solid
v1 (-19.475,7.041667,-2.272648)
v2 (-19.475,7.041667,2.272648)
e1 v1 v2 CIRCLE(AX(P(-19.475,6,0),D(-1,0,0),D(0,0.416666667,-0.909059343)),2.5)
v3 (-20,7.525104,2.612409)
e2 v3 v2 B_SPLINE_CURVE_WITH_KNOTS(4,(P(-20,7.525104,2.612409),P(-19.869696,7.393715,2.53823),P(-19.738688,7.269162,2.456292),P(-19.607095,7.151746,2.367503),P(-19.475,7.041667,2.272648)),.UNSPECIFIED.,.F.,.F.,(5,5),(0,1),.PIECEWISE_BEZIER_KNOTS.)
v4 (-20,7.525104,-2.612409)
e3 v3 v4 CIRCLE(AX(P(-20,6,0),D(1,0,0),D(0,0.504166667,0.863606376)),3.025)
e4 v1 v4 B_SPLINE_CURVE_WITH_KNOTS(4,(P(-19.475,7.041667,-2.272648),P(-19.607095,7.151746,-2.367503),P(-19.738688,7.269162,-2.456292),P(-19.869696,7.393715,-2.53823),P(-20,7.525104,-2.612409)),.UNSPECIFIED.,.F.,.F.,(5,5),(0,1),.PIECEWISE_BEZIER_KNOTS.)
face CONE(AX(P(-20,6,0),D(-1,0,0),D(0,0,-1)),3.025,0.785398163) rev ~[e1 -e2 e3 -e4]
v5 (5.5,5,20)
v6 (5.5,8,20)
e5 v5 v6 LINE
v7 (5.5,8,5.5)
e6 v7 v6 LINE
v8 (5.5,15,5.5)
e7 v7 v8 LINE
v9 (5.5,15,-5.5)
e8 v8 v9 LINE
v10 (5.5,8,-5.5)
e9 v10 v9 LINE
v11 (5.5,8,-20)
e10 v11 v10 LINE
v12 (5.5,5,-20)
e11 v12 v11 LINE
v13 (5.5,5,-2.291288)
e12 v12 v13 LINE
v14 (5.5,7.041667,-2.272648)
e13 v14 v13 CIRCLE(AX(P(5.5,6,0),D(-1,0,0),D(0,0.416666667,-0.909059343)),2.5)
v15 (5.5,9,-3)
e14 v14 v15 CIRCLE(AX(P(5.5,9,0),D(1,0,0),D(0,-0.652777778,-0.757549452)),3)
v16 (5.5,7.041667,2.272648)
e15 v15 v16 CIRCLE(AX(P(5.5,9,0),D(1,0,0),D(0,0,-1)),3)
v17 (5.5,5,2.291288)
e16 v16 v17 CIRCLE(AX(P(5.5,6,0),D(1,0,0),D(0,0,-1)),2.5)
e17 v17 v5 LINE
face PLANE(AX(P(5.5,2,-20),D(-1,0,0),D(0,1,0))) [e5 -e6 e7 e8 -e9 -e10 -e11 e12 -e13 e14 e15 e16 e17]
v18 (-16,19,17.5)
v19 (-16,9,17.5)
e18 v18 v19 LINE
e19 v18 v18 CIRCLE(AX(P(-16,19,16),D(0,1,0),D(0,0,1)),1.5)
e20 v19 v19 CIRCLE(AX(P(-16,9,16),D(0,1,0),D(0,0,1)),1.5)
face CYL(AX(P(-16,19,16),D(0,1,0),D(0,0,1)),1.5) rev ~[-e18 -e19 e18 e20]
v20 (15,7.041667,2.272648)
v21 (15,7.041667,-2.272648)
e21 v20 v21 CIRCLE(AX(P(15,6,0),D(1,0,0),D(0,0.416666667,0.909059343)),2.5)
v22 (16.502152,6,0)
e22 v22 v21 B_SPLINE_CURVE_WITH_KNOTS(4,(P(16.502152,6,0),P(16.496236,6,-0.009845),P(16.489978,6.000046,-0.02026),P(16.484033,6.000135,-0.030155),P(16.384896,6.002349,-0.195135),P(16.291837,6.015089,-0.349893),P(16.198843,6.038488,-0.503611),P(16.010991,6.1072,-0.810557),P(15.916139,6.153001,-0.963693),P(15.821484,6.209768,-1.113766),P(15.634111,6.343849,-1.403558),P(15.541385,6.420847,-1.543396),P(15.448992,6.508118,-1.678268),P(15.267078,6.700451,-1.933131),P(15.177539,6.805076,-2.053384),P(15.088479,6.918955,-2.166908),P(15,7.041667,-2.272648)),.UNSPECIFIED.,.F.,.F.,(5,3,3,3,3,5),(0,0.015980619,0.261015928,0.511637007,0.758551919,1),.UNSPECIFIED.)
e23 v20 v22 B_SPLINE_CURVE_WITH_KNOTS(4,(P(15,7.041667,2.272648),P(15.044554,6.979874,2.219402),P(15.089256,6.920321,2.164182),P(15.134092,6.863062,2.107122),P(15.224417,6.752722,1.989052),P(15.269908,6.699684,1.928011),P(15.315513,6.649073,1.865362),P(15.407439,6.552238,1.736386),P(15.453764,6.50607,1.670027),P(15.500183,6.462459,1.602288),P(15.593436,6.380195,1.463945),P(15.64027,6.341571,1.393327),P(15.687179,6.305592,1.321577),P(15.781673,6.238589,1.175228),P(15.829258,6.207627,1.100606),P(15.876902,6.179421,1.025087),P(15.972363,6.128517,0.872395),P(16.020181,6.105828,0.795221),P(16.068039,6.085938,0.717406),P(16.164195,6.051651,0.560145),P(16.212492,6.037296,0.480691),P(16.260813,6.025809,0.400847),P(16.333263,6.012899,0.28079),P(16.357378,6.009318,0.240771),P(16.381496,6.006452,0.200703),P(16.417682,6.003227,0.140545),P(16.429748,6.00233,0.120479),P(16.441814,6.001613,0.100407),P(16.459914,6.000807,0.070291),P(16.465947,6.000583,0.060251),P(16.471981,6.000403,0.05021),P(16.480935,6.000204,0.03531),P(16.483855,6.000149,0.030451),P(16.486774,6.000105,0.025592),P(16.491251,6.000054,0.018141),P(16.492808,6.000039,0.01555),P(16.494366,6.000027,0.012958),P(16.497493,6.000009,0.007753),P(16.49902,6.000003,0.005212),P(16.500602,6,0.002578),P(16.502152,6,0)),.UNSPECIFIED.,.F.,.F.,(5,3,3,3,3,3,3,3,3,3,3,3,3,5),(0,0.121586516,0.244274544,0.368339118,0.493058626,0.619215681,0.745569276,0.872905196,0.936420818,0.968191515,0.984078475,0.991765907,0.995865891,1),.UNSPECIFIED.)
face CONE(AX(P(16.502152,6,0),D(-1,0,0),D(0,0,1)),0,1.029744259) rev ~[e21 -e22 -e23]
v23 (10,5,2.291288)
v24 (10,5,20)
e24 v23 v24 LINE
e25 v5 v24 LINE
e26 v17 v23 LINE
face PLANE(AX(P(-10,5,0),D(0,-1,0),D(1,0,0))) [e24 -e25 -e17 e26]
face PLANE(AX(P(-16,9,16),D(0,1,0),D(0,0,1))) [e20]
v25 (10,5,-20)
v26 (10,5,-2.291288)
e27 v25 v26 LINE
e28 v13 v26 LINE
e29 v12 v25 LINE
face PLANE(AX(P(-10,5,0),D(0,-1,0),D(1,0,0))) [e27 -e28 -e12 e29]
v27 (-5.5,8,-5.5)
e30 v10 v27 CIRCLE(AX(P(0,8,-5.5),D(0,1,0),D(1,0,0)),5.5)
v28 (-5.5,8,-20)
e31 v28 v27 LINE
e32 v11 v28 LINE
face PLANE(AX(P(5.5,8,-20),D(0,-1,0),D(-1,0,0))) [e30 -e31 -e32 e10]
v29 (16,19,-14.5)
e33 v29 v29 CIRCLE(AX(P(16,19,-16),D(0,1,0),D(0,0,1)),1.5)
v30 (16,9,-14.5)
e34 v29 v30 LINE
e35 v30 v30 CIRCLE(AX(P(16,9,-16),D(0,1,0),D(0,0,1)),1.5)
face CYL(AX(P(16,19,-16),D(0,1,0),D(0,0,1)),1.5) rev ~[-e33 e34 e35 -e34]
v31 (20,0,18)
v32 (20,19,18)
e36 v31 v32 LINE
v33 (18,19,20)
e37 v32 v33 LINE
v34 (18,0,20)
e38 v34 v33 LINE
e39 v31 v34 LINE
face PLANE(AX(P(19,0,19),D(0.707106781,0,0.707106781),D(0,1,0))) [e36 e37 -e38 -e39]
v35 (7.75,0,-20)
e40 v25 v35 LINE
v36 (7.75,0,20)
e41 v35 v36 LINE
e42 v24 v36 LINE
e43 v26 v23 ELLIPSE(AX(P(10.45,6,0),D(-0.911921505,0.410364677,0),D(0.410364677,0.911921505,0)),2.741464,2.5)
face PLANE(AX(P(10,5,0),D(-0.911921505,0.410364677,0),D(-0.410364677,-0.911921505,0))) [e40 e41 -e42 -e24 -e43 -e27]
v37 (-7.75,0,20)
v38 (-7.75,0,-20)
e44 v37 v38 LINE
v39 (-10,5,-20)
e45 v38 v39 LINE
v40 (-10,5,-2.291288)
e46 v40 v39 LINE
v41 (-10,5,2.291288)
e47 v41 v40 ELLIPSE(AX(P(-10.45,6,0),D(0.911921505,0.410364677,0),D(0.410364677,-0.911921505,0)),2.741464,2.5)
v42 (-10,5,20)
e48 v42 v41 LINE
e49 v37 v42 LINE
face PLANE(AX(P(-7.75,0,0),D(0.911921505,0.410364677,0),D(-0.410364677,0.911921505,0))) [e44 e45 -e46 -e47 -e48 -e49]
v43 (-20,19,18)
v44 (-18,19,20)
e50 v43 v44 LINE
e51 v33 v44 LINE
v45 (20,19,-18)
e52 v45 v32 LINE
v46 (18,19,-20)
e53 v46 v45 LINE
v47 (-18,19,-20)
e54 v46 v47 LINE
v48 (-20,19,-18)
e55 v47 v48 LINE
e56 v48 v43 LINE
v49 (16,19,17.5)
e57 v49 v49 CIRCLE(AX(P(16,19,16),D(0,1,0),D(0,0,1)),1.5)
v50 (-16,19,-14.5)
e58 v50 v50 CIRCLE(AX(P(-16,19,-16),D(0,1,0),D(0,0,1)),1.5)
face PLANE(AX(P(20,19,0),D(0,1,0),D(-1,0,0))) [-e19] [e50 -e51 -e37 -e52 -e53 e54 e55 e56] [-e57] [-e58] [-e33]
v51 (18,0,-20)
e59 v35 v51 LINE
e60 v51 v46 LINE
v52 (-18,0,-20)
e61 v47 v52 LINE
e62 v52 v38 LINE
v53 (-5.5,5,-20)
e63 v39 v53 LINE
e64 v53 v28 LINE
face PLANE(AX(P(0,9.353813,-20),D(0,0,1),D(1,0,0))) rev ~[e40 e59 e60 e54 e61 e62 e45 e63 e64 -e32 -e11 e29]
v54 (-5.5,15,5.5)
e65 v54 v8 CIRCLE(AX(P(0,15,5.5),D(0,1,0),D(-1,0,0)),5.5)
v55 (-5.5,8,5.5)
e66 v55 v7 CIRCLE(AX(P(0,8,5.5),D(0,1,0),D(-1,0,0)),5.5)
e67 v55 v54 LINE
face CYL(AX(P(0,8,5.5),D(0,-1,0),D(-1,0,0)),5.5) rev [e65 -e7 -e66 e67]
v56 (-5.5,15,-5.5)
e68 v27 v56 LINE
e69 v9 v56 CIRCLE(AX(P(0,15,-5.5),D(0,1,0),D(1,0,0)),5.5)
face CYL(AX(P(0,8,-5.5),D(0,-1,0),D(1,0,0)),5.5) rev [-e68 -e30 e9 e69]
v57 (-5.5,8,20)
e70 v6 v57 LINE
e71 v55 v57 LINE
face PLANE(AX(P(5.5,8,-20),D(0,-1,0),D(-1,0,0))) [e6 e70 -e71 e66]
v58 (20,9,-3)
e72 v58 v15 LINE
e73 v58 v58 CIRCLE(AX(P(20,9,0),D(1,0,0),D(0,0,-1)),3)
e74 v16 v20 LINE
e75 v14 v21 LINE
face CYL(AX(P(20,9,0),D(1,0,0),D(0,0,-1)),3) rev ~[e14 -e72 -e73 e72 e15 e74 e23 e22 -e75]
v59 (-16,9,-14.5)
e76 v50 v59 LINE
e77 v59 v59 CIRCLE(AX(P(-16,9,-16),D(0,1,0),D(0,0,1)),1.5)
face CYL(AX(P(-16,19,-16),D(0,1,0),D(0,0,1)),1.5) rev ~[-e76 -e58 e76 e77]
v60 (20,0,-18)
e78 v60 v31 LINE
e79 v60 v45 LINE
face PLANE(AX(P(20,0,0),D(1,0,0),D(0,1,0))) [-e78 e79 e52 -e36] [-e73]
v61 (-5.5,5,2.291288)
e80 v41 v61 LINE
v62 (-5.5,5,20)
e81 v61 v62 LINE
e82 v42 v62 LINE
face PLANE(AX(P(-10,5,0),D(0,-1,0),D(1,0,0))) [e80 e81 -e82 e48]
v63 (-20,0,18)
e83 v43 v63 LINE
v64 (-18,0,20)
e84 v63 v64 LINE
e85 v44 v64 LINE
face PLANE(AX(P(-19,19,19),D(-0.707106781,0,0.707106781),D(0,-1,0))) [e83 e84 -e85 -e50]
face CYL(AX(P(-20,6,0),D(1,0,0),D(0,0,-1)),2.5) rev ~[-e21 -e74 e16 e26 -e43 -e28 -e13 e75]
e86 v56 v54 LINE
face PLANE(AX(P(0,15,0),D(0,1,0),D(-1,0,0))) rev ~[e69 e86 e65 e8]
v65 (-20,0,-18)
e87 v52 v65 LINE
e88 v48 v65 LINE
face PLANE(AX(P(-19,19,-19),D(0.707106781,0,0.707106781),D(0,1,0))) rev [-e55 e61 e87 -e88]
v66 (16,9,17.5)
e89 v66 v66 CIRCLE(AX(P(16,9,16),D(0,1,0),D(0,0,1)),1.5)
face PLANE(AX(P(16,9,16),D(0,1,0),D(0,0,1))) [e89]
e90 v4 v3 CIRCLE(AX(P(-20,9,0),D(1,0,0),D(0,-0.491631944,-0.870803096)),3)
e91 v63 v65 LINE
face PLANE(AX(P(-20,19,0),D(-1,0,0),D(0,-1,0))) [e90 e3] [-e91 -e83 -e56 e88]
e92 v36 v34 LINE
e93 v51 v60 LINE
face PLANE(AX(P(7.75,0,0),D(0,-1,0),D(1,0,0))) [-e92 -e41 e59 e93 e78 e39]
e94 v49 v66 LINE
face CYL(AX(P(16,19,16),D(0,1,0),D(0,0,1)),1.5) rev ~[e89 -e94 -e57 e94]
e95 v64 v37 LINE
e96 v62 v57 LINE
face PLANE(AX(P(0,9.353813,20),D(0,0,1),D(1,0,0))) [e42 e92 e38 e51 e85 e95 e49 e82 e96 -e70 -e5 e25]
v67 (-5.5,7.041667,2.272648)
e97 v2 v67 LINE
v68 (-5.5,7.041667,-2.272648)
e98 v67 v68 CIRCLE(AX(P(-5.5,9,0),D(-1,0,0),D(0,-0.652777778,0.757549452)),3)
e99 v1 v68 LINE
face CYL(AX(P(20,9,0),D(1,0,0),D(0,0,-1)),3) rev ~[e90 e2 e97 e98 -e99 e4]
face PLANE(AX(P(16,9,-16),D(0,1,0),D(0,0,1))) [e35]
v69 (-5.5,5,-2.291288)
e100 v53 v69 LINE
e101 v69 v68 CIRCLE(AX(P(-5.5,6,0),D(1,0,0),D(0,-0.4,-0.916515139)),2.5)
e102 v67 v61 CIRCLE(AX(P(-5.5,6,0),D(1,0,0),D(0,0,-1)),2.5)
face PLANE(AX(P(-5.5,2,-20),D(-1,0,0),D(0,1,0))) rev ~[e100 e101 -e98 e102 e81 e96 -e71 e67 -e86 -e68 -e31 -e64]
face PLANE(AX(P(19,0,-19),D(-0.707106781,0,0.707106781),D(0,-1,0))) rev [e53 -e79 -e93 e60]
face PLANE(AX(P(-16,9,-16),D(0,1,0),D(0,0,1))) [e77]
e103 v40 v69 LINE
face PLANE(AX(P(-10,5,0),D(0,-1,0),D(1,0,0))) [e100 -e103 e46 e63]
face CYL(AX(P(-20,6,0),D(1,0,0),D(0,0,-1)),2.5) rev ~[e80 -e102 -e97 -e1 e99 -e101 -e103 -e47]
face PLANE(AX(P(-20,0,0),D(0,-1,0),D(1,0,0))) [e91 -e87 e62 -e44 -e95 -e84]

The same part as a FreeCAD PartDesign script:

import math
import FreeCAD as App
import Part
import Sketcher

V = App.Vector


def edges_at(feature, points):
    """Names of the edges that pass closest to the given points."""
    edges = feature.Shape.Edges
    near = lambda p: min(range(len(edges)), key=lambda i: edges[i].distToShape(Part.Vertex(*p))[0])
    return sorted({f"Edge{near(p) + 1}" for p in points})

doc = App.newDocument("Part")
body = doc.addObject("PartDesign::Body", "Body")

# Sketch on XY plane
sketch1 = doc.addObject("Sketcher::SketchObject", "Sketch")
body.addObject(sketch1)
sketch1.AttachmentSupport = (doc.XY_Plane, [""])
sketch1.MapMode = "FlatFace"
sketch1.addGeometry([
    Part.LineSegment(V(-10, 5, 0), V(10, 5, 0)),  # 0
    Part.LineSegment(V(10, 5, 0), V(7.75, 0, 0)),  # 1
    Part.LineSegment(V(7.75, 0, 0), V(20, 0, 0)),  # 2
    Part.LineSegment(V(20, 0, 0), V(20, 19, 0)),  # 3
    Part.LineSegment(V(20, 19, 0), V(-20, 19, 0)),  # 4
    Part.LineSegment(V(-20, 19, 0), V(-20, 0, 0)),  # 5
    Part.LineSegment(V(-20, 0, 0), V(-7.75, 0, 0)),  # 6
    Part.LineSegment(V(-7.75, 0, 0), V(-10, 5, 0)),  # 7
], False)
sketch1.addConstraint([
    Sketcher.Constraint("Coincident", 0, 2, 1, 1),
    Sketcher.Constraint("Coincident", 1, 2, 2, 1),
    Sketcher.Constraint("Coincident", 2, 2, 3, 1),
    Sketcher.Constraint("Coincident", 3, 2, 4, 1),
    Sketcher.Constraint("Coincident", 4, 2, 5, 1),
    Sketcher.Constraint("Coincident", 5, 2, 6, 1),
    Sketcher.Constraint("Coincident", 6, 2, 7, 1),
    Sketcher.Constraint("Coincident", 7, 2, 0, 1),
    Sketcher.Constraint("Horizontal", 0),
    Sketcher.Constraint("Horizontal", 2),
    Sketcher.Constraint("Vertical", 3),
    Sketcher.Constraint("Horizontal", 4),
    Sketcher.Constraint("Vertical", 5),
    Sketcher.Constraint("Horizontal", 6),
    Sketcher.Constraint("Symmetric", 2, 2, 5, 2, -1, 1),
    Sketcher.Constraint("Symmetric", 1, 2, 6, 2, -2),
    Sketcher.Constraint("Equal", 1, 7),
    Sketcher.Constraint("DistanceX", 0, 1, 0, 2, 20.0),
    Sketcher.Constraint("DistanceX", 4, 2, 4, 1, 40.0),
    Sketcher.Constraint("DistanceY", 3, 1, 3, 2, 19.0),
    Sketcher.Constraint("DistanceY", -1, 1, 0, 2, 5.0),
    Sketcher.Constraint("DistanceX", 2, 1, 2, 2, 12.25),
])
pad1 = doc.addObject("PartDesign::Pad", "Pad")
body.addObject(pad1)
pad1.Profile = sketch1
pad1.Length = 40
pad1.Midplane = True

# Sketch on XY plane
sketch2 = doc.addObject("Sketcher::SketchObject", "Sketch001")
body.addObject(sketch2)
sketch2.AttachmentSupport = (doc.XY_Plane, [""])
sketch2.MapMode = "FlatFace"
sketch2.AttachmentOffset = App.Placement(V(0, 0, -20), App.Rotation())
sketch2.addGeometry([
    Part.LineSegment(V(5.5, 8, 0), V(5.5, 2, 0)),
    Part.LineSegment(V(5.5, 2, 0), V(-5.5, 2, 0)),
    Part.LineSegment(V(-5.5, 2, 0), V(-5.5, 8, 0)),
    Part.LineSegment(V(-5.5, 8, 0), V(5.5, 8, 0)),
], False)
sketch2.addConstraint([
    Sketcher.Constraint("Coincident", 0, 2, 1, 1),
    Sketcher.Constraint("Coincident", 1, 2, 2, 1),
    Sketcher.Constraint("Coincident", 2, 2, 3, 1),
    Sketcher.Constraint("Coincident", 3, 2, 0, 1),
    Sketcher.Constraint("Vertical", 0),
    Sketcher.Constraint("Horizontal", 1),
    Sketcher.Constraint("Vertical", 2),
    Sketcher.Constraint("Horizontal", 3),
    Sketcher.Constraint("DistanceX", 1, 2, 1, 1, 11.0),
    Sketcher.Constraint("DistanceY", 0, 2, 0, 1, 6.0),
    Sketcher.Constraint("DistanceY", -1, 1, 0, 2, 2.0),
    Sketcher.Constraint("DistanceX", -1, 1, 0, 2, 5.5),
])
pocket1 = doc.addObject("PartDesign::Pocket", "Pocket")
body.addObject(pocket1)
pocket1.Profile = sketch2
pocket1.Type = "UpToFirst"
pocket1.Reversed = True

# Sketch on YZ plane
sketch3 = doc.addObject("Sketcher::SketchObject", "Sketch002")
body.addObject(sketch3)
sketch3.AttachmentSupport = (doc.YZ_Plane, [""])
sketch3.MapMode = "FlatFace"
sketch3.AttachmentOffset = App.Placement(V(0, 0, -20), App.Rotation())
sketch3.addGeometry(Part.Circle(V(6, 0, 0), V(0, 0, 1), 2.5), False)
sketch3.addConstraint([
    Sketcher.Constraint("PointOnObject", 0, 3, -1),
    Sketcher.Constraint("Diameter", 0, 5.0),
    Sketcher.Constraint("DistanceX", -1, 1, 0, 3, 6.0),
])
doc.recompute()
hole = doc.addObject("PartDesign::Hole", "Hole")
body.addObject(hole)
hole.Profile = sketch3
hole.ThreadType = "None"
hole.Diameter = 5
hole.DepthType = "Dimension"
hole.Depth = 35
hole.DrillPoint = "Angled"
hole.DrillPointAngle = 118
hole.HoleCutType = "Countersink"
hole.HoleCutDiameter = 6.05
hole.HoleCutCountersinkAngle = 90
hole.Reversed = True

# Sketch on YZ plane
sketch4 = doc.addObject("Sketcher::SketchObject", "Sketch003")
body.addObject(sketch4)
sketch4.AttachmentSupport = (doc.YZ_Plane, [""])
sketch4.MapMode = "FlatFace"
sketch4.AttachmentOffset = App.Placement(V(0, 0, 20), App.Rotation())
sketch4.addGeometry(Part.Circle(V(9, 0, 0), V(0, 0, 1), 3), False)
sketch4.addConstraint([
    Sketcher.Constraint("PointOnObject", 0, 3, -1),
    Sketcher.Constraint("Diameter", 0, 6.0),
    Sketcher.Constraint("DistanceX", -1, 1, 0, 3, 9.0),
])
pocket2 = doc.addObject("PartDesign::Pocket", "Pocket001")
body.addObject(pocket2)
pocket2.Profile = sketch4
pocket2.Length = 45

# Sketch on XZ plane
sketch5 = doc.addObject("Sketcher::SketchObject", "Sketch004")
body.addObject(sketch5)
sketch5.AttachmentSupport = (doc.XZ_Plane, [""])
sketch5.MapMode = "FlatFace"
sketch5.AttachmentOffset = App.Placement(V(0, 0, -8), App.Rotation())
sketch5.addGeometry([
    Part.LineSegment(V(5.5, -5.5, 0), V(5.5, 5.5, 0)),
    Part.ArcOfCircle(Part.Circle(V(0, 5.5, 0), V(0, 0, 1), 5.5), math.radians(0), math.radians(180)),
    Part.LineSegment(V(-5.5, 5.5, 0), V(-5.5, -5.5, 0)),
    Part.ArcOfCircle(Part.Circle(V(0, -5.5, 0), V(0, 0, 1), 5.5), math.radians(180), math.radians(360)),
], False)
sketch5.addConstraint([
    Sketcher.Constraint("Tangent", 0, 2, 1, 1),
    Sketcher.Constraint("Tangent", 1, 2, 2, 1),
    Sketcher.Constraint("Tangent", 2, 2, 3, 1),
    Sketcher.Constraint("Tangent", 3, 2, 0, 1),
    Sketcher.Constraint("Vertical", 0),
    Sketcher.Constraint("Vertical", 2),
    Sketcher.Constraint("Symmetric", 1, 3, 3, 3, -1, 1),
    Sketcher.Constraint("Radius", 1, 5.5),
    Sketcher.Constraint("DistanceY", 0, 1, 0, 2, 11.0),
])
pocket3 = doc.addObject("PartDesign::Pocket", "Pocket002")
body.addObject(pocket3)
pocket3.Profile = sketch5
pocket3.Length = 7
doc.recompute()

chamfer = doc.addObject("PartDesign::Chamfer", "Chamfer")
body.addObject(chamfer)
chamfer.Base = (pocket3, edges_at(pocket3, [
    (20, 9.5, 20),
    (-20, 9.5, 20),
    (-20, 9.5, -20),
    (20, 9.5, -20),
]))
chamfer.Size = 2

# Sketch on XZ plane
sketch6 = doc.addObject("Sketcher::SketchObject", "Sketch005")
body.addObject(sketch6)
sketch6.AttachmentSupport = (doc.XZ_Plane, [""])
sketch6.MapMode = "FlatFace"
sketch6.AttachmentOffset = App.Placement(V(0, 0, -19), App.Rotation())
sketch6.addGeometry([
    Part.Circle(V(-16, -16, 0), V(0, 0, 1), 1.5),
    Part.Circle(V(16, -16, 0), V(0, 0, 1), 1.5),
    Part.Circle(V(16, 16, 0), V(0, 0, 1), 1.5),
    Part.Circle(V(-16, 16, 0), V(0, 0, 1), 1.5),
], False)
sketch6.addConstraint([
    Sketcher.Constraint("Equal", 0, 1),
    Sketcher.Constraint("Equal", 1, 2),
    Sketcher.Constraint("Equal", 2, 3),
    Sketcher.Constraint("Symmetric", 0, 3, 2, 3, -1, 1),
    Sketcher.Constraint("Symmetric", 1, 3, 3, 3, -1, 1),
    Sketcher.Constraint("Symmetric", 0, 3, 1, 3, -2),
    Sketcher.Constraint("Diameter", 0, 3.0),
    Sketcher.Constraint("DistanceX", 0, 3, -1, 1, 16.0),
    Sketcher.Constraint("DistanceY", 0, 3, -1, 1, 16.0),
])
pocket4 = doc.addObject("PartDesign::Pocket", "Pocket003")
body.addObject(pocket4)
pocket4.Profile = sketch6
pocket4.Length = 10
pocket4.Reversed = True

doc.recompute()
